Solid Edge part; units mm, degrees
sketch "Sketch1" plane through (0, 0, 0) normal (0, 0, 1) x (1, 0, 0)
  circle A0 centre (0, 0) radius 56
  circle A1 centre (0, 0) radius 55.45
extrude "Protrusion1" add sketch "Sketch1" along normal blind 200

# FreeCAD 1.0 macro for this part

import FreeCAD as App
import Part
import Sketcher
from FreeCAD import Vector
Q = App.Units.Quantity

doc = App.newDocument("Part")
body = doc.addObject("PartDesign::Body", "Body")

sketch1 = body.newObject("Sketcher::SketchObject", "Sketch")
sketch1.AttachmentSupport = (doc.getObject("XY_Plane"), [""])
sketch1.MapMode = "FlatFace"
sketch1.addGeometry([
    Part.Circle(Vector(0, 0, 0), Vector(0, 0, 1), 56),
    Part.Circle(Vector(0, 0, 0), Vector(0, 0, 1), 55),
], False)
sketch1.addConstraint([
    Sketcher.Constraint("Coincident", 0, 3, -1, 1),
    Sketcher.Constraint("Coincident", 1, 3, -1, 1),
    Sketcher.Constraint("Diameter", 0, Q("112 mm")),
    Sketcher.Constraint("Diameter", 1, Q("110.9 mm")),
])
pad1 = body.newObject("PartDesign::Pad", "Pad")
pad1.Profile = sketch1
pad1.Length = 200

doc.recompute()
